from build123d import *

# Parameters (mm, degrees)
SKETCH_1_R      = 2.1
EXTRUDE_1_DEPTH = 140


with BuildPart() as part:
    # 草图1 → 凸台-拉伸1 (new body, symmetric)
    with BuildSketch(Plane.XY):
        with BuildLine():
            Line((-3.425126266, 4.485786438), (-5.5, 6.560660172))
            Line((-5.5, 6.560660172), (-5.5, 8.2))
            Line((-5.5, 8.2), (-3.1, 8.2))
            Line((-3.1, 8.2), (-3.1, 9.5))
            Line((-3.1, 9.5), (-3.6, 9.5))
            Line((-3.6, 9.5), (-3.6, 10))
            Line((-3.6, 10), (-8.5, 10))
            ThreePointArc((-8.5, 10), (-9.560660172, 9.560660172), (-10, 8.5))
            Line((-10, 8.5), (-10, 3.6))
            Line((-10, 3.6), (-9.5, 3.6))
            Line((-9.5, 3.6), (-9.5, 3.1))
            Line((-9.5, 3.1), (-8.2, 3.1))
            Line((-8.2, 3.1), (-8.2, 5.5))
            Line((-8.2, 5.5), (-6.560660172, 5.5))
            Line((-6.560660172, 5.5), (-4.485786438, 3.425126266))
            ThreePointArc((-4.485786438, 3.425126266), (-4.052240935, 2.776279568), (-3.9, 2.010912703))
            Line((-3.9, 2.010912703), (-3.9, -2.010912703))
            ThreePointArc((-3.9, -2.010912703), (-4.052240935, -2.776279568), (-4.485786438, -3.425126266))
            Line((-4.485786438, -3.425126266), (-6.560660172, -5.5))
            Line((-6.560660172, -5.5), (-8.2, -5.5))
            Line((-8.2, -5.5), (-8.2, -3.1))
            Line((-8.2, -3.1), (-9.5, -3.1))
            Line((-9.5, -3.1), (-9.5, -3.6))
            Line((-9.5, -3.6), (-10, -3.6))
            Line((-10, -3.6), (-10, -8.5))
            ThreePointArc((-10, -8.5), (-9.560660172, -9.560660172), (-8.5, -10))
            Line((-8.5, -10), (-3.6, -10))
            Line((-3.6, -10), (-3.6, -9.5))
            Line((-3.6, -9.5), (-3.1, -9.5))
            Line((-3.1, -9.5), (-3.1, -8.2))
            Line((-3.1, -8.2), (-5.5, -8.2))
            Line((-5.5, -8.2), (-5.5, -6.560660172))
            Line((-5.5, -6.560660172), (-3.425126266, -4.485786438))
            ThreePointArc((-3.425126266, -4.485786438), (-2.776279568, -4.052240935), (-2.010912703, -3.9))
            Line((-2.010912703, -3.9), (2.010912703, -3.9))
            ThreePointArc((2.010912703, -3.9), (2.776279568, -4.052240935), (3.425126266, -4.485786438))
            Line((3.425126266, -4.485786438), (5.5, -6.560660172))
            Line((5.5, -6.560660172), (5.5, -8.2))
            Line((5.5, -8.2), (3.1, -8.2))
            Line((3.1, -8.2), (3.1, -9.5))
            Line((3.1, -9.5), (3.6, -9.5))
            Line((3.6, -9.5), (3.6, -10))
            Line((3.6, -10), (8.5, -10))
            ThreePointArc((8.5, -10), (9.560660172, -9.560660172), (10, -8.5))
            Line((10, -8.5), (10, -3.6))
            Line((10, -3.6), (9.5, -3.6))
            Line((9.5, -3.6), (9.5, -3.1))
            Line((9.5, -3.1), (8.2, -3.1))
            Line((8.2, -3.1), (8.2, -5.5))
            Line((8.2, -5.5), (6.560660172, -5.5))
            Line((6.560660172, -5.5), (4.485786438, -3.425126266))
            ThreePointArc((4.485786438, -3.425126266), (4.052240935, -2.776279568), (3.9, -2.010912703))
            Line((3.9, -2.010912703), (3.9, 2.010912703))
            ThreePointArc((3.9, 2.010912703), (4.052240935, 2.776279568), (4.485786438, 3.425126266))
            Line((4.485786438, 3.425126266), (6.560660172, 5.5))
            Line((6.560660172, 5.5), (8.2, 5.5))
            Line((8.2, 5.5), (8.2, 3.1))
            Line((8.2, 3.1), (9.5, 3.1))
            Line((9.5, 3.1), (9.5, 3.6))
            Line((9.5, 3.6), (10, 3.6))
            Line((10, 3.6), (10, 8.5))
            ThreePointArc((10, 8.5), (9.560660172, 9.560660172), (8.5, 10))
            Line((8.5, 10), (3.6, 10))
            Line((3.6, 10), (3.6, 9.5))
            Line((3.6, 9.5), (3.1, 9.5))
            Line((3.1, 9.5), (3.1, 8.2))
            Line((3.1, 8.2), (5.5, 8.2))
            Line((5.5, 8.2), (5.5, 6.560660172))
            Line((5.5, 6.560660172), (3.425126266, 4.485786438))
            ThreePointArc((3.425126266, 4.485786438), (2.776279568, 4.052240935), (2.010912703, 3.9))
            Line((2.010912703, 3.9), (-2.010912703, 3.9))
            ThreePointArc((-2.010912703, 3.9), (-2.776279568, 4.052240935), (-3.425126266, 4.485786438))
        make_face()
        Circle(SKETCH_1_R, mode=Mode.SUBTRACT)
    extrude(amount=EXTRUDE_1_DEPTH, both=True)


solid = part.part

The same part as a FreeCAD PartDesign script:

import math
import FreeCAD as App
import Part
import Sketcher
Q = App.Units.Quantity

doc = App.newDocument("Part")
params = doc.addObject("Spreadsheet::Sheet", "Params")
for row, (alias, value) in enumerate([
    ("sketch1_radius", "2 mm"),
    ("sketch1_diameter", "4.2 mm"),
    ("sketch1_radius2", "1.5 mm"),
    ("sketch1_width", "2.4 mm"),
    ("sketch1_width2", "0.5 mm"),
    ("pad1_length", "280 mm"),
], start=1):
    params.set(f"A{row}", alias)
    params.set(f"B{row}", "=" + value)
    params.setAlias(f"B{row}", alias)

body = doc.addObject("PartDesign::Body", "Body")

# Sketch on XY plane
sketch1 = body.newObject("Sketcher::SketchObject", "Sketch")
sketch1.AttachmentSupport = (doc.getObject("XY_Plane"), [""])
sketch1.MapMode = "FlatFace"
sketch1.addGeometry([
    Part.LineSegment(App.Vector(-3.4, 4.5, 0), App.Vector(-5.5, 6.6, 0)),  # 0
    Part.LineSegment(App.Vector(-5.5, 6.6, 0), App.Vector(-5.5, 8.2, 0)),  # 1
    Part.LineSegment(App.Vector(-5.5, 8.2, 0), App.Vector(-3.1, 8.2, 0)),  # 2
    Part.LineSegment(App.Vector(-3.1, 8.2, 0), App.Vector(-3.1, 9.5, 0)),  # 3
    Part.LineSegment(App.Vector(-3.1, 9.5, 0), App.Vector(-3.6, 9.5, 0)),  # 4
    Part.LineSegment(App.Vector(-3.6, 9.5, 0), App.Vector(-3.6, 10, 0)),  # 5
    Part.LineSegment(App.Vector(-3.6, 10, 0), App.Vector(-8.5, 10, 0)),  # 6
    Part.ArcOfCircle(Part.Circle(App.Vector(-8.5, 8.5, 0), App.Vector(0, 0, 1), 1.5), math.radians(90), math.radians(180)),  # 7
    Part.LineSegment(App.Vector(-10, 8.5, 0), App.Vector(-10, 3.6, 0)),  # 8
    Part.LineSegment(App.Vector(-10, 3.6, 0), App.Vector(-9.5, 3.6, 0)),  # 9
    Part.LineSegment(App.Vector(-9.5, 3.6, 0), App.Vector(-9.5, 3.1, 0)),  # 10
    Part.LineSegment(App.Vector(-9.5, 3.1, 0), App.Vector(-8.2, 3.1, 0)),  # 11
    Part.LineSegment(App.Vector(-8.2, 3.1, 0), App.Vector(-8.2, 5.5, 0)),  # 12
    Part.LineSegment(App.Vector(-8.2, 5.5, 0), App.Vector(-6.6, 5.5, 0)),  # 13
    Part.LineSegment(App.Vector(-6.6, 5.5, 0), App.Vector(-4.5, 3.4, 0)),  # 14
    Part.ArcOfCircle(Part.Circle(App.Vector(-5.9, 2, 0), App.Vector(0, 0, 1), 2), math.radians(0), math.radians(45)),  # 15
    Part.LineSegment(App.Vector(-3.9, 2, 0), App.Vector(-3.9, -2, 0)),  # 16
    Part.ArcOfCircle(Part.Circle(App.Vector(-5.9, -2, 0), App.Vector(0, 0, 1), 2), math.radians(-45), math.radians(0)),  # 17
    Part.LineSegment(App.Vector(-4.5, -3.4, 0), App.Vector(-6.6, -5.5, 0)),  # 18
    Part.LineSegment(App.Vector(-6.6, -5.5, 0), App.Vector(-8.2, -5.5, 0)),  # 19
    Part.LineSegment(App.Vector(-8.2, -5.5, 0), App.Vector(-8.2, -3.1, 0)),  # 20
    Part.LineSegment(App.Vector(-8.2, -3.1, 0), App.Vector(-9.5, -3.1, 0)),  # 21
    Part.LineSegment(App.Vector(-9.5, -3.1, 0), App.Vector(-9.5, -3.6, 0)),  # 22
    Part.LineSegment(App.Vector(-9.5, -3.6, 0), App.Vector(-10, -3.6, 0)),  # 23
    Part.LineSegment(App.Vector(-10, -3.6, 0), App.Vector(-10, -8.5, 0)),  # 24
    Part.ArcOfCircle(Part.Circle(App.Vector(-8.5, -8.5, 0), App.Vector(0, 0, 1), 1.5), math.radians(180), math.radians(270)),  # 25
    Part.LineSegment(App.Vector(-8.5, -10, 0), App.Vector(-3.6, -10, 0)),  # 26
    Part.LineSegment(App.Vector(-3.6, -10, 0), App.Vector(-3.6, -9.5, 0)),  # 27
    Part.LineSegment(App.Vector(-3.6, -9.5, 0), App.Vector(-3.1, -9.5, 0)),  # 28
    Part.LineSegment(App.Vector(-3.1, -9.5, 0), App.Vector(-3.1, -8.2, 0)),  # 29
    Part.LineSegment(App.Vector(-3.1, -8.2, 0), App.Vector(-5.5, -8.2, 0)),  # 30
    Part.LineSegment(App.Vector(-5.5, -8.2, 0), App.Vector(-5.5, -6.6, 0)),  # 31
    Part.LineSegment(App.Vector(-5.5, -6.6, 0), App.Vector(-3.4, -4.5, 0)),  # 32
    Part.ArcOfCircle(Part.Circle(App.Vector(-2, -5.9, 0), App.Vector(0, 0, 1), 2), math.radians(90), math.radians(135)),  # 33
    Part.LineSegment(App.Vector(-2, -3.9, 0), App.Vector(2, -3.9, 0)),  # 34
    Part.ArcOfCircle(Part.Circle(App.Vector(2, -5.9, 0), App.Vector(0, 0, 1), 2), math.radians(45), math.radians(90)),  # 35
    Part.LineSegment(App.Vector(3.4, -4.5, 0), App.Vector(5.5, -6.6, 0)),  # 36
    Part.LineSegment(App.Vector(5.5, -6.6, 0), App.Vector(5.5, -8.2, 0)),  # 37
    Part.LineSegment(App.Vector(5.5, -8.2, 0), App.Vector(3.1, -8.2, 0)),  # 38
    Part.LineSegment(App.Vector(3.1, -8.2, 0), App.Vector(3.1, -9.5, 0)),  # 39
    Part.LineSegment(App.Vector(3.1, -9.5, 0), App.Vector(3.6, -9.5, 0)),  # 40
    Part.LineSegment(App.Vector(3.6, -9.5, 0), App.Vector(3.6, -10, 0)),  # 41
    Part.LineSegment(App.Vector(3.6, -10, 0), App.Vector(8.5, -10, 0)),  # 42
    Part.ArcOfCircle(Part.Circle(App.Vector(8.5, -8.5, 0), App.Vector(0, 0, 1), 1.5), math.radians(-90), math.radians(0)),  # 43
    Part.LineSegment(App.Vector(10, -8.5, 0), App.Vector(10, -3.6, 0)),  # 44
    Part.LineSegment(App.Vector(10, -3.6, 0), App.Vector(9.5, -3.6, 0)),  # 45
    Part.LineSegment(App.Vector(9.5, -3.6, 0), App.Vector(9.5, -3.1, 0)),  # 46
    Part.LineSegment(App.Vector(9.5, -3.1, 0), App.Vector(8.2, -3.1, 0)),  # 47
    Part.LineSegment(App.Vector(8.2, -3.1, 0), App.Vector(8.2, -5.5, 0)),  # 48
    Part.LineSegment(App.Vector(8.2, -5.5, 0), App.Vector(6.6, -5.5, 0)),  # 49
    Part.LineSegment(App.Vector(6.6, -5.5, 0), App.Vector(4.5, -3.4, 0)),  # 50
    Part.ArcOfCircle(Part.Circle(App.Vector(5.9, -2, 0), App.Vector(0, 0, 1), 2), math.radians(180), math.radians(225)),  # 51
    Part.LineSegment(App.Vector(3.9, -2, 0), App.Vector(3.9, 2, 0)),  # 52
    Part.ArcOfCircle(Part.Circle(App.Vector(5.9, 2, 0), App.Vector(0, 0, 1), 2), math.radians(135), math.radians(180)),  # 53
    Part.LineSegment(App.Vector(4.5, 3.4, 0), App.Vector(6.6, 5.5, 0)),  # 54
    Part.LineSegment(App.Vector(6.6, 5.5, 0), App.Vector(8.2, 5.5, 0)),  # 55
    Part.LineSegment(App.Vector(8.2, 5.5, 0), App.Vector(8.2, 3.1, 0)),  # 56
    Part.LineSegment(App.Vector(8.2, 3.1, 0), App.Vector(9.5, 3.1, 0)),  # 57
    Part.LineSegment(App.Vector(9.5, 3.1, 0), App.Vector(9.5, 3.6, 0)),  # 58
    Part.LineSegment(App.Vector(9.5, 3.6, 0), App.Vector(10, 3.6, 0)),  # 59
    Part.LineSegment(App.Vector(10, 3.6, 0), App.Vector(10, 8.5, 0)),  # 60
    Part.ArcOfCircle(Part.Circle(App.Vector(8.5, 8.5, 0), App.Vector(0, 0, 1), 1.5), math.radians(0), math.radians(90)),  # 61
    Part.LineSegment(App.Vector(8.5, 10, 0), App.Vector(3.6, 10, 0)),  # 62
    Part.LineSegment(App.Vector(3.6, 10, 0), App.Vector(3.6, 9.5, 0)),  # 63
    Part.LineSegment(App.Vector(3.6, 9.5, 0), App.Vector(3.1, 9.5, 0)),  # 64
    Part.LineSegment(App.Vector(3.1, 9.5, 0), App.Vector(3.1, 8.2, 0)),  # 65
    Part.LineSegment(App.Vector(3.1, 8.2, 0), App.Vector(5.5, 8.2, 0)),  # 66
    Part.LineSegment(App.Vector(5.5, 8.2, 0), App.Vector(5.5, 6.6, 0)),  # 67
    Part.LineSegment(App.Vector(5.5, 6.6, 0), App.Vector(3.4, 4.5, 0)),  # 68
    Part.ArcOfCircle(Part.Circle(App.Vector(2, 5.9, 0), App.Vector(0, 0, 1), 2), math.radians(-90), math.radians(-45)),  # 69
    Part.LineSegment(App.Vector(2, 3.9, 0), App.Vector(-2, 3.9, 0)),  # 70
    Part.ArcOfCircle(Part.Circle(App.Vector(-2, 5.9, 0), App.Vector(0, 0, 1), 2), math.radians(-135), math.radians(-90)),  # 71
    Part.Circle(App.Vector(0, 0, 0), App.Vector(0, 0, 1), 2.1),  # 72
], False)
sketch1.addConstraint([
    Sketcher.Constraint("Coincident", 0, 2, 1, 1),
    Sketcher.Constraint("Coincident", 1, 2, 2, 1),
    Sketcher.Constraint("Coincident", 2, 2, 3, 1),
    Sketcher.Constraint("Coincident", 3, 2, 4, 1),
    Sketcher.Constraint("Coincident", 4, 2, 5, 1),
    Sketcher.Constraint("Coincident", 5, 2, 6, 1),
    Sketcher.Constraint("Tangent", 6, 2, 7, 1),
    Sketcher.Constraint("Tangent", 7, 2, 8, 1),
    Sketcher.Constraint("Coincident", 8, 2, 9, 1),
    Sketcher.Constraint("Coincident", 9, 2, 10, 1),
    Sketcher.Constraint("Coincident", 10, 2, 11, 1),
    Sketcher.Constraint("Coincident", 11, 2, 12, 1),
    Sketcher.Constraint("Coincident", 12, 2, 13, 1),
    Sketcher.Constraint("Coincident", 13, 2, 14, 1),
    Sketcher.Constraint("Tangent", 14, 2, 15, 2),
    Sketcher.Constraint("Tangent", 15, 1, 16, 1),
    Sketcher.Constraint("Tangent", 16, 2, 17, 2),
    Sketcher.Constraint("Tangent", 17, 1, 18, 1),
    Sketcher.Constraint("Coincident", 18, 2, 19, 1),
    Sketcher.Constraint("Coincident", 19, 2, 20, 1),
    Sketcher.Constraint("Coincident", 20, 2, 21, 1),
    Sketcher.Constraint("Coincident", 21, 2, 22, 1),
    Sketcher.Constraint("Coincident", 22, 2, 23, 1),
    Sketcher.Constraint("Coincident", 23, 2, 24, 1),
    Sketcher.Constraint("Tangent", 24, 2, 25, 1),
    Sketcher.Constraint("Tangent", 25, 2, 26, 1),
    Sketcher.Constraint("Coincident", 26, 2, 27, 1),
    Sketcher.Constraint("Coincident", 27, 2, 28, 1),
    Sketcher.Constraint("Coincident", 28, 2, 29, 1),
    Sketcher.Constraint("Coincident", 29, 2, 30, 1),
    Sketcher.Constraint("Coincident", 30, 2, 31, 1),
    Sketcher.Constraint("Coincident", 31, 2, 32, 1),
    Sketcher.Constraint("Tangent", 32, 2, 33, 2),
    Sketcher.Constraint("Tangent", 33, 1, 34, 1),
    Sketcher.Constraint("Tangent", 34, 2, 35, 2),
    Sketcher.Constraint("Tangent", 35, 1, 36, 1),
    Sketcher.Constraint("Coincident", 36, 2, 37, 1),
    Sketcher.Constraint("Coincident", 37, 2, 38, 1),
    Sketcher.Constraint("Coincident", 38, 2, 39, 1),
    Sketcher.Constraint("Coincident", 39, 2, 40, 1),
    Sketcher.Constraint("Coincident", 40, 2, 41, 1),
    Sketcher.Constraint("Coincident", 41, 2, 42, 1),
    Sketcher.Constraint("Tangent", 42, 2, 43, 1),
    Sketcher.Constraint("Tangent", 43, 2, 44, 1),
    Sketcher.Constraint("Coincident", 44, 2, 45, 1),
    Sketcher.Constraint("Coincident", 45, 2, 46, 1),
    Sketcher.Constraint("Coincident", 46, 2, 47, 1),
    Sketcher.Constraint("Coincident", 47, 2, 48, 1),
    Sketcher.Constraint("Coincident", 48, 2, 49, 1),
    Sketcher.Constraint("Coincident", 49, 2, 50, 1),
    Sketcher.Constraint("Tangent", 50, 2, 51, 2),
    Sketcher.Constraint("Tangent", 51, 1, 52, 1),
    Sketcher.Constraint("Tangent", 52, 2, 53, 2),
    Sketcher.Constraint("Tangent", 53, 1, 54, 1),
    Sketcher.Constraint("Coincident", 54, 2, 55, 1),
    Sketcher.Constraint("Coincident", 55, 2, 56, 1),
    Sketcher.Constraint("Coincident", 56, 2, 57, 1),
    Sketcher.Constraint("Coincident", 57, 2, 58, 1),
    Sketcher.Constraint("Coincident", 58, 2, 59, 1),
    Sketcher.Constraint("Coincident", 59, 2, 60, 1),
    Sketcher.Constraint("Tangent", 60, 2, 61, 1),
    Sketcher.Constraint("Tangent", 61, 2, 62, 1),
    Sketcher.Constraint("Coincident", 62, 2, 63, 1),
    Sketcher.Constraint("Coincident", 63, 2, 64, 1),
    Sketcher.Constraint("Coincident", 64, 2, 65, 1),
    Sketcher.Constraint("Coincident", 65, 2, 66, 1),
    Sketcher.Constraint("Coincident", 66, 2, 67, 1),
    Sketcher.Constraint("Coincident", 67, 2, 68, 1),
    Sketcher.Constraint("Tangent", 68, 2, 69, 2),
    Sketcher.Constraint("Tangent", 69, 1, 70, 1),
    Sketcher.Constraint("Tangent", 70, 2, 71, 2),
    Sketcher.Constraint("Tangent", 71, 1, 0, 1),
    Sketcher.Constraint("Vertical", 1),
    Sketcher.Constraint("Horizontal", 2),
    Sketcher.Constraint("Vertical", 3),
    Sketcher.Constraint("Horizontal", 4),
    Sketcher.Constraint("Vertical", 5),
    Sketcher.Constraint("Horizontal", 6),
    Sketcher.Constraint("Vertical", 8),
    Sketcher.Constraint("Horizontal", 9),
    Sketcher.Constraint("Vertical", 10),
    Sketcher.Constraint("Horizontal", 11),
    Sketcher.Constraint("Vertical", 12),
    Sketcher.Constraint("Horizontal", 13),
    Sketcher.Constraint("Vertical", 16),
    Sketcher.Constraint("Horizontal", 19),
    Sketcher.Constraint("Vertical", 20),
    Sketcher.Constraint("Horizontal", 21),
    Sketcher.Constraint("Vertical", 22),
    Sketcher.Constraint("Horizontal", 23),
    Sketcher.Constraint("Vertical", 24),
    Sketcher.Constraint("Horizontal", 26),
    Sketcher.Constraint("Vertical", 27),
    Sketcher.Constraint("Horizontal", 28),
    Sketcher.Constraint("Vertical", 29),
    Sketcher.Constraint("Horizontal", 30),
    Sketcher.Constraint("Vertical", 31),
    Sketcher.Constraint("Horizontal", 34),
    Sketcher.Constraint("Vertical", 37),
    Sketcher.Constraint("Horizontal", 38),
    Sketcher.Constraint("Vertical", 39),
    Sketcher.Constraint("Horizontal", 40),
    Sketcher.Constraint("Vertical", 41),
    Sketcher.Constraint("Horizontal", 42),
    Sketcher.Constraint("Vertical", 44),
    Sketcher.Constraint("Horizontal", 45),
    Sketcher.Constraint("Vertical", 46),
    Sketcher.Constraint("Horizontal", 47),
    Sketcher.Constraint("Vertical", 48),
    Sketcher.Constraint("Horizontal", 49),
    Sketcher.Constraint("Vertical", 52),
    Sketcher.Constraint("Horizontal", 55),
    Sketcher.Constraint("Vertical", 56),
    Sketcher.Constraint("Horizontal", 57),
    Sketcher.Constraint("Vertical", 58),
    Sketcher.Constraint("Horizontal", 59),
    Sketcher.Constraint("Vertical", 60),
    Sketcher.Constraint("Horizontal", 62),
    Sketcher.Constraint("Vertical", 63),
    Sketcher.Constraint("Horizontal", 64),
    Sketcher.Constraint("Vertical", 65),
    Sketcher.Constraint("Horizontal", 66),
    Sketcher.Constraint("Vertical", 67),
    Sketcher.Constraint("Horizontal", 70),
    Sketcher.Constraint("Coincident", 72, 3, -1, 1),
    Sketcher.Constraint("Equal", 15, 17),
    Sketcher.Constraint("Equal", 7, 25),
    Sketcher.Constraint("Equal", 17, 33),
    Sketcher.Constraint("Equal", 33, 35),
    Sketcher.Constraint("Equal", 25, 43),
    Sketcher.Constraint("Equal", 35, 51),
    Sketcher.Constraint("Equal", 51, 53),
    Sketcher.Constraint("Equal", 43, 61),
    Sketcher.Constraint("Equal", 53, 69),
    Sketcher.Constraint("Equal", 69, 71),
    Sketcher.Constraint("Symmetric", 7, 3, 43, 3, -1, 1),
    Sketcher.Constraint("Symmetric", 15, 3, 51, 3, -1, 1),
    Sketcher.Constraint("Symmetric", 25, 3, 61, 3, -1, 1),
    Sketcher.Constraint("Symmetric", 33, 3, 69, 3, -1, 1),
    Sketcher.Constraint("Symmetric", 0, 2, 36, 2, -1, 1),
    Sketcher.Constraint("Symmetric", 2, 2, 38, 2, -1, 1),
    Sketcher.Constraint("Symmetric", 4, 2, 40, 2, -1, 1),
    Sketcher.Constraint("Symmetric", 9, 2, 45, 2, -1, 1),
    Sketcher.Constraint("Symmetric", 11, 2, 47, 2, -1, 1),
    Sketcher.Constraint("Symmetric", 13, 2, 49, 2, -1, 1),
    Sketcher.Constraint("Symmetric", 17, 1, 53, 1, -1, 1),
    Sketcher.Constraint("Symmetric", 19, 2, 55, 2, -1, 1),
    Sketcher.Constraint("Symmetric", 21, 2, 57, 2, -1, 1),
    Sketcher.Constraint("Symmetric", 27, 2, 63, 2, -1, 1),
    Sketcher.Constraint("Symmetric", 29, 2, 65, 2, -1, 1),
    Sketcher.Constraint("Symmetric", 31, 2, 67, 2, -1, 1),
    Sketcher.Constraint("Symmetric", 25, 3, 43, 3, -2),
    Sketcher.Constraint("Symmetric", 32, 2, 35, 1, -2),
    Sketcher.Constraint("Symmetric", 30, 2, 37, 2, -2),
    Sketcher.Constraint("Symmetric", 28, 2, 39, 2, -2),
    Sketcher.Constraint("Symmetric", 22, 2, 45, 2, -2),
    Sketcher.Constraint("Symmetric", 20, 2, 47, 2, -2),
    Sketcher.Constraint("Symmetric", 18, 2, 49, 2, -2),
    Sketcher.Constraint("Parallel", 0, 14),
    Sketcher.Constraint("Perpendicular", 14, 18),
    Sketcher.Constraint("Parallel", 18, 32),
    Sketcher.Constraint("Perpendicular", 32, 36),
    Sketcher.Constraint("Horizontal", 9, 2, 58, 2),
    Sketcher.Constraint("Vertical", 5, 2, 26, 2),
    Sketcher.Constraint("Equal", 4, 9),
    Sketcher.Constraint("Equal", 55, 1),
    Sketcher.Constraint("Equal", 57, 3),
    Sketcher.Constraint("Equal", 64, 5),
    Sketcher.Constraint("Equal", 62, 8),
    Sketcher.Constraint("Equal", 5, 10),
    Sketcher.Constraint("Equal", 66, 12),
    Sketcher.Constraint("Equal", 70, 16),
    Sketcher.Constraint("Equal", 0, 14),
    Sketcher.Constraint("Radius", 15, Q("2 mm")),
    Sketcher.Constraint("Diameter", 72, Q("4.2 mm")),
    Sketcher.Constraint("Radius", 7, Q("1.5 mm")),
    Sketcher.Constraint("DistanceX", 2, 1, 2, 2, Q("2.4 mm")),
    Sketcher.Constraint("DistanceX", 4, 2, 4, 1, Q("0.5 mm")),
    Sketcher.Constraint("DistanceX", 6, 2, 6, 1, Q("4.9 mm")),
    Sketcher.Constraint("DistanceX", 11, 1, 11, 2, Q("1.3 mm")),
    Sketcher.Constraint("DistanceY", -1, 1, 5, 2, Q("10 mm")),
    Sketcher.Constraint("DistanceX", 15, 3, -1, 1, Q("5.9 mm")),
    Sketcher.Constraint("DistanceX", 13, 1, 13, 2, Q("1.63934 mm")),
])
sketch1.setExpression("Constraints[173]", "Params.sketch1_radius")
sketch1.setExpression("Constraints[174]", "Params.sketch1_diameter")
sketch1.setExpression("Constraints[175]", "Params.sketch1_radius2")
sketch1.setExpression("Constraints[176]", "Params.sketch1_width")
sketch1.setExpression("Constraints[177]", "Params.sketch1_width2")
pad1 = body.newObject("PartDesign::Pad", "Pad")
pad1.Profile = sketch1
pad1.setExpression("Length", "Params.pad1_length")
pad1.Midplane = True

doc.recompute()
